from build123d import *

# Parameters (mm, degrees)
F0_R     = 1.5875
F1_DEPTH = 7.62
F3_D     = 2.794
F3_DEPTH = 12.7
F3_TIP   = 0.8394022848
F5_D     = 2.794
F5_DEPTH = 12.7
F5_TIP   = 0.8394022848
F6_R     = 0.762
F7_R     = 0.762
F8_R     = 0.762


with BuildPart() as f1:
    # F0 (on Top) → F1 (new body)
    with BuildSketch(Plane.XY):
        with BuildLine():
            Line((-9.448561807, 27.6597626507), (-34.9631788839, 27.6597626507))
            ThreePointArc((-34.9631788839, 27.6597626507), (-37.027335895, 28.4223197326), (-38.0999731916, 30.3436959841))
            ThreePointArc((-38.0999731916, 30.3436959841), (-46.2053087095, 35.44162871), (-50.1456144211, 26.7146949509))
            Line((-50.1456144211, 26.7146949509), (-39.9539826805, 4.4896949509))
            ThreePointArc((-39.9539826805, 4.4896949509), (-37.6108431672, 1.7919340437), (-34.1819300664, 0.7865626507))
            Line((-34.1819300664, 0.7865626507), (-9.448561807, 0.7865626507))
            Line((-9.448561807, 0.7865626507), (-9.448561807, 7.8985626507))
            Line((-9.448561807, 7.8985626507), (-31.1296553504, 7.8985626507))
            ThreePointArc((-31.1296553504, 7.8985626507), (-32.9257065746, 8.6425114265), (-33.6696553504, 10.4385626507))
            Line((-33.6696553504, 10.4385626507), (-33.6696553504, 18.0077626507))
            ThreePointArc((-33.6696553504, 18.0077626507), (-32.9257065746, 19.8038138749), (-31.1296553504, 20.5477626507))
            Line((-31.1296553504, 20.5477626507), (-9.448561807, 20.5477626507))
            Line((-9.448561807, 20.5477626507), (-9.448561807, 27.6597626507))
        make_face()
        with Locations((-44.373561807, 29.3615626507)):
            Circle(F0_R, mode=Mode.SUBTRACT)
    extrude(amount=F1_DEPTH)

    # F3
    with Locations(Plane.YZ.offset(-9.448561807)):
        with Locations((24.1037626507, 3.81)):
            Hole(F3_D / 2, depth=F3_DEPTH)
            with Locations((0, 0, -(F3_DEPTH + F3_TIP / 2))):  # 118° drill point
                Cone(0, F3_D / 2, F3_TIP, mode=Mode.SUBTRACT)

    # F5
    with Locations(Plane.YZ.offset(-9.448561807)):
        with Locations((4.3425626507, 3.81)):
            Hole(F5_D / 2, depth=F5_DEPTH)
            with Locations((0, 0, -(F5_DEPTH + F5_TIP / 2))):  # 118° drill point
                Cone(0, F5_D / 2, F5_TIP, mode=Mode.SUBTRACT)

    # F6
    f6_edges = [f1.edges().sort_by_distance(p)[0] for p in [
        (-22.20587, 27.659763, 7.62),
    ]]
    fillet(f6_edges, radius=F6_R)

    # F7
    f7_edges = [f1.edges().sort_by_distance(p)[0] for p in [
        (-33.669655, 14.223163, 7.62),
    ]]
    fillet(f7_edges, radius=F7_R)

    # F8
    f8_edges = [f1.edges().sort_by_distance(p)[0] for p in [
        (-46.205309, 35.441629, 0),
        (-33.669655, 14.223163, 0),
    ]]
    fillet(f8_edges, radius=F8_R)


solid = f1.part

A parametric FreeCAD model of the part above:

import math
import FreeCAD as App
import Part
import Sketcher

V = App.Vector
Q = App.Units.Quantity


def edges_at(feature, points):
    """Names of the edges that pass closest to the given points."""
    edges = feature.Shape.Edges
    near = lambda p: min(range(len(edges)), key=lambda i: edges[i].distToShape(Part.Vertex(*p))[0])
    return sorted({f"Edge{near(p) + 1}" for p in points})

doc = App.newDocument("Part")
body = doc.addObject("PartDesign::Body", "Body")

sketch1 = doc.addObject("Sketcher::SketchObject", "Sketch")
body.addObject(sketch1)
sketch1.AttachmentSupport = (doc.XY_Plane, [""])
sketch1.MapMode = "FlatFace"
sketch1.addGeometry([
    Part.LineSegment(V(-9.4, 27.7, 0), V(-35, 27.7, 0)),
    Part.ArcOfCircle(Part.Circle(V(-35, 30.8, 0), V(0, 0, 1), 3.2), math.radians(-171), math.radians(-90)),
    Part.ArcOfCircle(Part.Circle(V(-44.4, 29.4, 0), V(0, 0, 1), 6.3), math.radians(9), math.radians(205)),
    Part.LineSegment(V(-50.1, 26.7, 0), V(-40, 4.5, 0)),
    Part.ArcOfCircle(Part.Circle(V(-34.2, 7.1, 0), V(0, 0, 1), 6.3), math.radians(-155), math.radians(-90)),
    Part.LineSegment(V(-34.2, 0.8, 0), V(-9.4, 0.8, 0)),
    Part.LineSegment(V(-9.4, 0.8, 0), V(-9.4, 7.9, 0)),
    Part.LineSegment(V(-9.4, 7.9, 0), V(-31.1, 7.9, 0)),
    Part.ArcOfCircle(Part.Circle(V(-31.1, 10.4, 0), V(0, 0, 1), 2.5), math.radians(180), math.radians(270)),
    Part.LineSegment(V(-33.7, 10.4, 0), V(-33.7, 18, 0)),
    Part.ArcOfCircle(Part.Circle(V(-31.1, 18, 0), V(0, 0, 1), 2.5), math.radians(90), math.radians(180)),
    Part.LineSegment(V(-31.1, 20.5, 0), V(-9.4, 20.5, 0)),
    Part.LineSegment(V(-9.4, 20.5, 0), V(-9.4, 27.7, 0)),
    Part.Circle(V(-44.4, 29.4, 0), V(0, 0, 1), 1.6),
], False)
sketch1.addConstraint([
    Sketcher.Constraint("Tangent", 0, 2, 1, 2),
    Sketcher.Constraint("Tangent", 1, 1, 2, 1),
    Sketcher.Constraint("Tangent", 2, 2, 3, 1),
    Sketcher.Constraint("Tangent", 3, 2, 4, 1),
    Sketcher.Constraint("Tangent", 4, 2, 5, 1),
    Sketcher.Constraint("Coincident", 5, 2, 6, 1),
    Sketcher.Constraint("Coincident", 6, 2, 7, 1),
    Sketcher.Constraint("Tangent", 7, 2, 8, 2),
    Sketcher.Constraint("Tangent", 8, 1, 9, 1),
    Sketcher.Constraint("Tangent", 9, 2, 10, 2),
    Sketcher.Constraint("Tangent", 10, 1, 11, 1),
    Sketcher.Constraint("Coincident", 11, 2, 12, 1),
    Sketcher.Constraint("Coincident", 12, 2, 0, 1),
    Sketcher.Constraint("Horizontal", 0),
    Sketcher.Constraint("Horizontal", 5),
    Sketcher.Constraint("Vertical", 6),
    Sketcher.Constraint("Horizontal", 7),
    Sketcher.Constraint("Vertical", 9),
    Sketcher.Constraint("Horizontal", 11),
    Sketcher.Constraint("Vertical", 12),
    Sketcher.Constraint("Coincident", 13, 3, 2, 3),
    Sketcher.Constraint("Equal", 2, 4),
    Sketcher.Constraint("Equal", 8, 10),
    Sketcher.Constraint("Vertical", 6, 2, 11, 2),
    Sketcher.Constraint("Equal", 6, 12),
    Sketcher.Constraint("Radius", 8, Q("0.1 in")),
    Sketcher.Constraint("Radius", 2, Q("0.25 in")),
    Sketcher.Constraint("Diameter", 13, Q("0.125 in")),
    Sketcher.Constraint("Radius", 1, Q("0.125 in")),
    Sketcher.Constraint("DistanceY", 6, 1, 6, 2, Q("0.28 in")),
    Sketcher.Constraint("DistanceY", 9, 1, 9, 2, Q("0.298 in")),
    Sketcher.Constraint("DistanceY", 2, 3, 1, 3, Q("0.058 in")),
    Sketcher.Constraint("DistanceX", 5, 1, 5, 2, 24.733368),
    Sketcher.Constraint("DistanceY", 2, 2, 1, 1, 3.629001),
    Sketcher.Constraint("DistanceX", 7, 2, 7, 1, 21.681094),
    Sketcher.Constraint("DistanceX", 1, 3, -1, 1, 34.963179),
    Sketcher.Constraint("DistanceY", -1, 1, 1, 3, 30.834763),
])
pad1 = doc.addObject("PartDesign::Pad", "Pad")
body.addObject(pad1)
pad1.Profile = sketch1
pad1.Length = Q("0.3 in")

sketch2 = doc.addObject("Sketcher::SketchObject", "Sketch001")
body.addObject(sketch2)
sketch2.AttachmentSupport = (doc.YZ_Plane, [""])
sketch2.MapMode = "FlatFace"
sketch2.AttachmentOffset = App.Placement(V(0, 0, -9.448562), App.Rotation())
sketch2.addGeometry(Part.Circle(V(24.1, 3.8, 0), V(0, 0, 1), 1.4), False)
sketch2.addConstraint([
    Sketcher.Constraint("Diameter", 0, Q("0.11 in")),
    Sketcher.Constraint("DistanceY", -1, 1, 0, 3, Q("0.15 in")),
    Sketcher.Constraint("DistanceX", -1, 1, 0, 3, 24.103763),
])
doc.recompute()
hole = doc.addObject("PartDesign::Hole", "Hole")
body.addObject(hole)
hole.Profile = sketch2
hole.ThreadType = "None"
hole.Diameter = Q("0.11 in")
hole.DepthType = "Dimension"
hole.Depth = Q("0.5 in")
hole.DrillPoint = "Angled"
hole.DrillPointAngle = 118

sketch3 = doc.addObject("Sketcher::SketchObject", "Sketch002")
body.addObject(sketch3)
sketch3.AttachmentSupport = (doc.YZ_Plane, [""])
sketch3.MapMode = "FlatFace"
sketch3.AttachmentOffset = App.Placement(V(0, 0, -9.448562), App.Rotation())
sketch3.addGeometry(Part.Circle(V(4.3, 3.8, 0), V(0, 0, 1), 1.4), False)
sketch3.addConstraint([
    Sketcher.Constraint("Diameter", 0, Q("0.11 in")),
    Sketcher.Constraint("DistanceY", -1, 1, 0, 3, Q("0.15 in")),
    Sketcher.Constraint("DistanceX", -1, 1, 0, 3, 4.342563),
])
doc.recompute()
hole2 = doc.addObject("PartDesign::Hole", "Hole001")
body.addObject(hole2)
hole2.Profile = sketch3
hole2.ThreadType = "None"
hole2.Diameter = Q("0.11 in")
hole2.DepthType = "Dimension"
hole2.Depth = Q("0.5 in")
hole2.DrillPoint = "Angled"
hole2.DrillPointAngle = 118
doc.recompute()

fillet = doc.addObject("PartDesign::Fillet", "Fillet")
body.addObject(fillet)
fillet.Base = (hole2, edges_at(hole2, [(-22.206, 27.66, 7.62)]))
fillet.Radius = Q("0.03 in")
doc.recompute()

fillet2 = doc.addObject("PartDesign::Fillet", "Fillet001")
body.addObject(fillet2)
fillet2.Base = (fillet, edges_at(fillet, [(-33.67, 14.223, 7.62)]))
fillet2.Radius = Q("0.03 in")
doc.recompute()

fillet3 = doc.addObject("PartDesign::Fillet", "Fillet002")
body.addObject(fillet3)
fillet3.Base = (fillet2, edges_at(fillet2, [(-46.205, 35.442, 0), (-33.67, 14.223, 0)]))
fillet3.Radius = Q("0.03 in")

doc.recompute()
